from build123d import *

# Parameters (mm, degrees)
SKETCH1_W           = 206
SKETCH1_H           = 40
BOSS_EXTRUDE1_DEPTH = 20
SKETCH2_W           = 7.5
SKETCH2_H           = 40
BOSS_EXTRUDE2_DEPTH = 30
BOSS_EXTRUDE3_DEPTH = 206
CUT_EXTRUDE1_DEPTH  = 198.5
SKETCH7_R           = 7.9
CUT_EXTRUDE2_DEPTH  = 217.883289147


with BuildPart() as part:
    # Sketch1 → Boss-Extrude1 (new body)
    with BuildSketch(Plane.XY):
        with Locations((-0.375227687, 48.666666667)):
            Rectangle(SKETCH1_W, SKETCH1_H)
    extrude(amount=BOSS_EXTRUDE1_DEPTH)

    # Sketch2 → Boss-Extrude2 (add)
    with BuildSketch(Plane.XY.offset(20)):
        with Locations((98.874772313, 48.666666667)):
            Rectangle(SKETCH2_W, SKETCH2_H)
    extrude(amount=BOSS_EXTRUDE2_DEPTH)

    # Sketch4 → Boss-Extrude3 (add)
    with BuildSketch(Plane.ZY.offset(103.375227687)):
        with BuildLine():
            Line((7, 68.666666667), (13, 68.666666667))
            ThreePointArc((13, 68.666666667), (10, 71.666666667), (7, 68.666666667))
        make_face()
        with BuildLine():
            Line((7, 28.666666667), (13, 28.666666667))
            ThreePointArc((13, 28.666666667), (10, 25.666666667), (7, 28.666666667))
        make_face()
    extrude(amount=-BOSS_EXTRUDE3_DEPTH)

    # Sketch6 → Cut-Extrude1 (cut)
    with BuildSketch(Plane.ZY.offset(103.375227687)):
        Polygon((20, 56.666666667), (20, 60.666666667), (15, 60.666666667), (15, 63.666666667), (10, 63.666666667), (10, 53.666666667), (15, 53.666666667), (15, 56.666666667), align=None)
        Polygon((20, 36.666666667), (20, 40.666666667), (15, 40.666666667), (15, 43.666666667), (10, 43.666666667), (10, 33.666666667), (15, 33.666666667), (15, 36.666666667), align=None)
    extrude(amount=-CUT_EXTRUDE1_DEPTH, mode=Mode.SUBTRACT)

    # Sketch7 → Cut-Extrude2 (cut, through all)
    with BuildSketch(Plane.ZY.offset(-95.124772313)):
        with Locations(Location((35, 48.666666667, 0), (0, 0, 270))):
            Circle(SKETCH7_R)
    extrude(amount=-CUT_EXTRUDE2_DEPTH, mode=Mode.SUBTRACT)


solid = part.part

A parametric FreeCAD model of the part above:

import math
import FreeCAD as App
import Part
import Sketcher
from FreeCAD import Vector

doc = App.newDocument("Part")
params = doc.addObject("Spreadsheet::Sheet", "Params")
for row, (alias, value) in enumerate([
    ("sketch1_width", "206 mm"),
    ("sketch1_height", "40 mm"),
    ("pad1_length", "20 mm"),
    ("sketch2_height", "40 mm"),
    ("sketch2_width", "7.5 mm"),
    ("pad2_length", "30 mm"),
    ("sketch3_radius", "3 mm"),
    ("pad3_length", "206 mm"),
    ("sketch4_width", "4 mm"),
    ("sketch4_width2", "3 mm"),
    ("sketch4_height", "5 mm"),
    ("pocket1_length", "198.5 mm"),
    ("sketch5_diameter", "15.8 mm"),
], start=1):
    params.set(f"A{row}", alias)
    params.set(f"B{row}", "=" + value)
    params.setAlias(f"B{row}", alias)

body = doc.addObject("PartDesign::Body", "Body")

sketch1 = body.newObject("Sketcher::SketchObject", "Sketch")
sketch1.AttachmentSupport = (doc.getObject("XY_Plane"), [""])
sketch1.MapMode = "FlatFace"
sketch1.addGeometry([
    Part.LineSegment(Vector(-103, 69, 0), Vector(-103, 29, 0)),
    Part.LineSegment(Vector(-103, 29, 0), Vector(103, 29, 0)),
    Part.LineSegment(Vector(103, 29, 0), Vector(103, 69, 0)),
    Part.LineSegment(Vector(103, 69, 0), Vector(-103, 69, 0)),
], False)
sketch1.addConstraint([
    Sketcher.Constraint("Coincident", 0, 2, 1, 1),
    Sketcher.Constraint("Coincident", 1, 2, 2, 1),
    Sketcher.Constraint("Coincident", 2, 2, 3, 1),
    Sketcher.Constraint("Coincident", 3, 2, 0, 1),
    Sketcher.Constraint("Vertical", 0),
    Sketcher.Constraint("Horizontal", 1),
    Sketcher.Constraint("Vertical", 2),
    Sketcher.Constraint("Horizontal", 3),
    Sketcher.Constraint("DistanceX", 1, 1, 1, 2, 206.0),
    Sketcher.Constraint("DistanceY", 0, 2, 0, 1, 40.0),
    Sketcher.Constraint("DistanceX", 0, 2, -1, 1, 103.375228),
    Sketcher.Constraint("DistanceY", -1, 1, 0, 2, 28.666667),
])
sketch1.setExpression("Constraints[8]", "Params.sketch1_width")
sketch1.setExpression("Constraints[9]", "Params.sketch1_height")
pad1 = body.newObject("PartDesign::Pad", "Pad")
pad1.Profile = sketch1
pad1.setExpression("Length", "Params.pad1_length")

sketch2 = body.newObject("Sketcher::SketchObject", "Sketch001")
sketch2.AttachmentSupport = (doc.getObject("XY_Plane"), [""])
sketch2.MapMode = "FlatFace"
sketch2.AttachmentOffset = App.Placement(Vector(0, 0, 20), App.Rotation())
sketch2.addGeometry([
    Part.LineSegment(Vector(95, 69, 0), Vector(95, 29, 0)),
    Part.LineSegment(Vector(95, 29, 0), Vector(103, 29, 0)),
    Part.LineSegment(Vector(103, 29, 0), Vector(103, 69, 0)),
    Part.LineSegment(Vector(103, 69, 0), Vector(95, 69, 0)),
], False)
sketch2.addConstraint([
    Sketcher.Constraint("Coincident", 0, 2, 1, 1),
    Sketcher.Constraint("Coincident", 1, 2, 2, 1),
    Sketcher.Constraint("Coincident", 2, 2, 3, 1),
    Sketcher.Constraint("Coincident", 3, 2, 0, 1),
    Sketcher.Constraint("Vertical", 0),
    Sketcher.Constraint("Horizontal", 1),
    Sketcher.Constraint("Vertical", 2),
    Sketcher.Constraint("Horizontal", 3),
    Sketcher.Constraint("DistanceY", 0, 2, 0, 1, 40.0),
    Sketcher.Constraint("DistanceX", 1, 1, 1, 2, 7.5),
    Sketcher.Constraint("DistanceX", -1, 1, 0, 2, 95.124772),
    Sketcher.Constraint("DistanceY", -1, 1, 0, 2, 28.666667),
])
sketch2.setExpression("Constraints[8]", "Params.sketch2_height")
sketch2.setExpression("Constraints[9]", "Params.sketch2_width")
pad2 = body.newObject("PartDesign::Pad", "Pad001")
pad2.Profile = sketch2
pad2.setExpression("Length", "Params.pad2_length")

sketch3 = body.newObject("Sketcher::SketchObject", "Sketch002")
sketch3.AttachmentSupport = (doc.getObject("YZ_Plane"), [""])
sketch3.MapMode = "FlatFace"
sketch3.AttachmentOffset = App.Placement(Vector(0, 0, -103.375228), App.Rotation())
sketch3.addGeometry([
    Part.LineSegment(Vector(68.7, 7, 0), Vector(68.7, 13, 0)),
    Part.ArcOfCircle(Part.Circle(Vector(68.7, 10, 0), Vector(0, 0, 1), 3), math.radians(-90), math.radians(90)),
    Part.LineSegment(Vector(28.7, 13, 0), Vector(28.7, 7, 0)),
    Part.ArcOfCircle(Part.Circle(Vector(28.7, 10, 0), Vector(0, 0, 1), 3), math.radians(90), math.radians(270)),
], False)
sketch3.addConstraint([
    Sketcher.Constraint("Coincident", 0, 1, 1, 1),
    Sketcher.Constraint("Coincident", 1, 2, 0, 2),
    Sketcher.Constraint("Coincident", 2, 1, 3, 1),
    Sketcher.Constraint("Coincident", 3, 2, 2, 2),
    Sketcher.Constraint("Vertical", 0),
    Sketcher.Constraint("Vertical", 2),
    Sketcher.Constraint("Equal", 1, 3),
    Sketcher.Constraint("Horizontal", 1, 3, 3, 3),
    Sketcher.Constraint("Vertical", 1, 3, 0, 1),
    Sketcher.Constraint("Vertical", 3, 3, 2, 1),
    Sketcher.Constraint("Radius", 1, 3.0),
    Sketcher.Constraint("DistanceY", -1, 1, 1, 3, 10.0),
    Sketcher.Constraint("DistanceX", 3, 3, 1, 3, 40.0),
    Sketcher.Constraint("DistanceX", -1, 1, 1, 3, 68.666667),
])
sketch3.setExpression("Constraints[10]", "Params.sketch3_radius")
pad3 = body.newObject("PartDesign::Pad", "Pad002")
pad3.Profile = sketch3
pad3.setExpression("Length", "Params.pad3_length")

sketch4 = body.newObject("Sketcher::SketchObject", "Sketch003")
sketch4.AttachmentSupport = (doc.getObject("YZ_Plane"), [""])
sketch4.MapMode = "FlatFace"
sketch4.AttachmentOffset = App.Placement(Vector(0, 0, -103.375228), App.Rotation())
sketch4.addGeometry([
    Part.LineSegment(Vector(56.7, 20, 0), Vector(60.7, 20, 0)),
    Part.LineSegment(Vector(60.7, 20, 0), Vector(60.7, 15, 0)),
    Part.LineSegment(Vector(60.7, 15, 0), Vector(63.7, 15, 0)),
    Part.LineSegment(Vector(63.7, 15, 0), Vector(63.7, 10, 0)),
    Part.LineSegment(Vector(63.7, 10, 0), Vector(53.7, 10, 0)),
    Part.LineSegment(Vector(53.7, 10, 0), Vector(53.7, 15, 0)),
    Part.LineSegment(Vector(53.7, 15, 0), Vector(56.7, 15, 0)),
    Part.LineSegment(Vector(56.7, 15, 0), Vector(56.7, 20, 0)),
    Part.LineSegment(Vector(36.7, 20, 0), Vector(40.7, 20, 0)),
    Part.LineSegment(Vector(40.7, 20, 0), Vector(40.7, 15, 0)),
    Part.LineSegment(Vector(40.7, 15, 0), Vector(43.7, 15, 0)),
    Part.LineSegment(Vector(43.7, 15, 0), Vector(43.7, 10, 0)),
    Part.LineSegment(Vector(43.7, 10, 0), Vector(33.7, 10, 0)),
    Part.LineSegment(Vector(33.7, 10, 0), Vector(33.7, 15, 0)),
    Part.LineSegment(Vector(33.7, 15, 0), Vector(36.7, 15, 0)),
    Part.LineSegment(Vector(36.7, 15, 0), Vector(36.7, 20, 0)),
], False)
sketch4.addConstraint([
    Sketcher.Constraint("Coincident", 0, 2, 1, 1),
    Sketcher.Constraint("Coincident", 1, 2, 2, 1),
    Sketcher.Constraint("Coincident", 2, 2, 3, 1),
    Sketcher.Constraint("Coincident", 3, 2, 4, 1),
    Sketcher.Constraint("Coincident", 4, 2, 5, 1),
    Sketcher.Constraint("Coincident", 5, 2, 6, 1),
    Sketcher.Constraint("Coincident", 6, 2, 7, 1),
    Sketcher.Constraint("Coincident", 7, 2, 0, 1),
    Sketcher.Constraint("Coincident", 8, 2, 9, 1),
    Sketcher.Constraint("Coincident", 9, 2, 10, 1),
    Sketcher.Constraint("Coincident", 10, 2, 11, 1),
    Sketcher.Constraint("Coincident", 11, 2, 12, 1),
    Sketcher.Constraint("Coincident", 12, 2, 13, 1),
    Sketcher.Constraint("Coincident", 13, 2, 14, 1),
    Sketcher.Constraint("Coincident", 14, 2, 15, 1),
    Sketcher.Constraint("Coincident", 15, 2, 8, 1),
    Sketcher.Constraint("Horizontal", 0),
    Sketcher.Constraint("Vertical", 1),
    Sketcher.Constraint("Horizontal", 2),
    Sketcher.Constraint("Vertical", 3),
    Sketcher.Constraint("Horizontal", 4),
    Sketcher.Constraint("Vertical", 5),
    Sketcher.Constraint("Horizontal", 6),
    Sketcher.Constraint("Vertical", 7),
    Sketcher.Constraint("Horizontal", 8),
    Sketcher.Constraint("Vertical", 9),
    Sketcher.Constraint("Horizontal", 10),
    Sketcher.Constraint("Vertical", 11),
    Sketcher.Constraint("Horizontal", 12),
    Sketcher.Constraint("Vertical", 13),
    Sketcher.Constraint("Horizontal", 14),
    Sketcher.Constraint("Vertical", 15),
    Sketcher.Constraint("Horizontal", 2, 2, 5, 2),
    Sketcher.Constraint("Horizontal", 7, 2, 8, 2),
    Sketcher.Constraint("Horizontal", 6, 2, 9, 2),
    Sketcher.Constraint("Horizontal", 4, 2, 11, 2),
    Sketcher.Constraint("Horizontal", 10, 2, 13, 2),
    Sketcher.Constraint("Equal", 2, 6),
    Sketcher.Constraint("Equal", 0, 8),
    Sketcher.Constraint("Equal", 6, 10),
    Sketcher.Constraint("Equal", 4, 12),
    Sketcher.Constraint("Equal", 1, 3),
    Sketcher.Constraint("DistanceX", 0, 1, 0, 2, 4.0),
    Sketcher.Constraint("DistanceX", 2, 1, 2, 2, 3.0),
    Sketcher.Constraint("DistanceY", 1, 2, 1, 1, 5.0),
    Sketcher.Constraint("DistanceY", -1, 1, 0, 2, 20.0),
    Sketcher.Constraint("DistanceX", 8, 2, 5, 2, 13.0),
    Sketcher.Constraint("DistanceX", -1, 1, 0, 2, 60.666667),
])
sketch4.setExpression("Constraints[42]", "Params.sketch4_width")
sketch4.setExpression("Constraints[43]", "Params.sketch4_width2")
sketch4.setExpression("Constraints[44]", "Params.sketch4_height")
pocket1 = body.newObject("PartDesign::Pocket", "Pocket")
pocket1.Profile = sketch4
pocket1.setExpression("Length", "Params.pocket1_length")
pocket1.Reversed = True

sketch5 = body.newObject("Sketcher::SketchObject", "Sketch004")
sketch5.AttachmentSupport = (doc.getObject("YZ_Plane"), [""])
sketch5.MapMode = "FlatFace"
sketch5.AttachmentOffset = App.Placement(Vector(0, 0, 95.124772), App.Rotation())
sketch5.addGeometry(Part.Circle(Vector(49, 35, 0), Vector(0, 0, 1), 8), False)
sketch5.addConstraint([
    Sketcher.Constraint("Diameter", 0, 15.8),
    Sketcher.Constraint("DistanceY", -1, 1, 0, 3, 35.0),
    Sketcher.Constraint("DistanceX", -1, 1, 0, 3, 48.666667),
])
sketch5.setExpression("Constraints[0]", "Params.sketch5_diameter")
pocket2 = body.newObject("PartDesign::Pocket", "Pocket001")
pocket2.Profile = sketch5
pocket2.Type = "ThroughAll"
pocket2.Reversed = True

doc.recompute()
